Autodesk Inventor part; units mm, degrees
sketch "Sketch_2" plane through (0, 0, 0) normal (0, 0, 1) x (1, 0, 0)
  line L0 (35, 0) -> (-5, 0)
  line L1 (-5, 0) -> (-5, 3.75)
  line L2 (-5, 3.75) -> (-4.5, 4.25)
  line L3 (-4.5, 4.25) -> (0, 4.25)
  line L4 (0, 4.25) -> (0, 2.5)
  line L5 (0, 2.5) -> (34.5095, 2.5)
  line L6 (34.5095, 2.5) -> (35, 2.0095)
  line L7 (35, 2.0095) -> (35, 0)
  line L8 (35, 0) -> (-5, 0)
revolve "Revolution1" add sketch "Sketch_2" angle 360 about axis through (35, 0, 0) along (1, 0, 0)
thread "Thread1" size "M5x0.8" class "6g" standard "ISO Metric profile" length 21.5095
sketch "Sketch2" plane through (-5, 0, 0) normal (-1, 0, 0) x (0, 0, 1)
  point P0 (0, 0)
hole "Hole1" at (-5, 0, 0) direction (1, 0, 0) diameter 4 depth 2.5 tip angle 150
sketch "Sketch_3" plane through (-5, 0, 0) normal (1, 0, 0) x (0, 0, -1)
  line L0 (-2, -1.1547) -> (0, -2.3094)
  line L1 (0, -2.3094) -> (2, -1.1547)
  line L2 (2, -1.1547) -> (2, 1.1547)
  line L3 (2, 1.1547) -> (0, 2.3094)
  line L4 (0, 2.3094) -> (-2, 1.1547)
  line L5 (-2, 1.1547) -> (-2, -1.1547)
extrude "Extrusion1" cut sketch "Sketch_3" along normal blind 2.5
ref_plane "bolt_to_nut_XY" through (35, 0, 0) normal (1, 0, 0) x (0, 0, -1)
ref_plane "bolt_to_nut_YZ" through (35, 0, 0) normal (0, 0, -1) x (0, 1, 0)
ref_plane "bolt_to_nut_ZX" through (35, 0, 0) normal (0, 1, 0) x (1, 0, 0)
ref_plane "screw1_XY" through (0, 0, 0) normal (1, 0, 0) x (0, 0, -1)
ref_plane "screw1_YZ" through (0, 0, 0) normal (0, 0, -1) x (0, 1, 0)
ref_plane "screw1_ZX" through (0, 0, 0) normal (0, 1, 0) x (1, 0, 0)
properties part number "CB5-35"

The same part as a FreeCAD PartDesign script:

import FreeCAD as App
import Part
import Sketcher
Q = App.Units.Quantity

doc = App.newDocument("Part")
body = doc.addObject("PartDesign::Body", "Body")

sketch1 = body.newObject("Sketcher::SketchObject", "Sketch")
sketch1.AttachmentSupport = (doc.getObject("XY_Plane"), [""])
sketch1.MapMode = "FlatFace"
sketch1.addGeometry([
    Part.LineSegment(App.Vector(-5, 0, 0), App.Vector(35, 0, 0)),
    Part.LineSegment(App.Vector(35, 0, 0), App.Vector(35, 2.0095, 0)),
    Part.LineSegment(App.Vector(35, 2.0095, 0), App.Vector(34.5095, 2.5, 0)),
    Part.LineSegment(App.Vector(34.5095, 2.5, 0), App.Vector(0, 2.5, 0)),
    Part.LineSegment(App.Vector(0, 2.5, 0), App.Vector(0, 4.25, 0)),
    Part.LineSegment(App.Vector(0, 4.25, 0), App.Vector(-4.5, 4.25, 0)),
    Part.LineSegment(App.Vector(-4.5, 4.25, 0), App.Vector(-5, 3.75, 0)),
    Part.LineSegment(App.Vector(-5, 3.75, 0), App.Vector(-5, 0, 0)),
], False)
sketch1.addConstraint([
    Sketcher.Constraint("Coincident", 0, 2, 1, 1),
    Sketcher.Constraint("Coincident", 1, 2, 2, 1),
    Sketcher.Constraint("Coincident", 2, 2, 3, 1),
    Sketcher.Constraint("Coincident", 3, 2, 4, 1),
    Sketcher.Constraint("Coincident", 4, 2, 5, 1),
    Sketcher.Constraint("Coincident", 5, 2, 6, 1),
    Sketcher.Constraint("Coincident", 6, 2, 7, 1),
    Sketcher.Constraint("Coincident", 7, 2, 0, 1),
    Sketcher.Constraint("Horizontal", 0),
    Sketcher.Constraint("Vertical", 1),
    Sketcher.Constraint("Horizontal", 3),
    Sketcher.Constraint("Vertical", 4),
    Sketcher.Constraint("Horizontal", 5),
    Sketcher.Constraint("Vertical", 7),
    Sketcher.Constraint("PointOnObject", 0, 2, -1),
    Sketcher.Constraint("PointOnObject", 3, 2, -2),
    Sketcher.Constraint("Perpendicular", 2, 6),
    Sketcher.Constraint("DistanceX", 0, 1, 0, 2, Q("40 mm")),
    Sketcher.Constraint("Angle", 2, Q("135 deg")),
    Sketcher.Constraint("DistanceX", 5, 2, 5, 1, Q("4.5 mm")),
    Sketcher.Constraint("DistanceX", -1, 1, 0, 2, Q("35 mm")),
    Sketcher.Constraint("DistanceY", 4, 1, 4, 2, Q("1.75 mm")),
    Sketcher.Constraint("DistanceY", 7, 2, 7, 1, Q("3.75 mm")),
    Sketcher.Constraint("DistanceX", 3, 2, 3, 1, Q("34.5095 mm")),
])
revolution = body.newObject("PartDesign::Revolution", "Revolution")
revolution.Profile = sketch1
revolution.ReferenceAxis = (sketch1, ["H_Axis"])
revolution.Angle = 360

sketch2 = body.newObject("Sketcher::SketchObject", "Sketch001")
sketch2.AttachmentSupport = (doc.getObject("YZ_Plane"), [""])
sketch2.MapMode = "FlatFace"
sketch2.AttachmentOffset = App.Placement(App.Vector(0, 0, -5), App.Rotation())
sketch2.addGeometry(Part.Circle(App.Vector(0, 0, 0), App.Vector(0, 0, 1), 2), False)
sketch2.addConstraint([
    Sketcher.Constraint("Coincident", 0, 3, -1, 1),
    Sketcher.Constraint("Diameter", 0, Q("4 mm")),
])
doc.recompute()
hole = body.newObject("PartDesign::Hole", "Hole")
hole.Profile = sketch2
hole.ThreadType = "None"
hole.Diameter = 4
hole.DepthType = "Dimension"
hole.Depth = 2.5
hole.DrillPoint = "Angled"
hole.DrillPointAngle = 150
hole.Reversed = True

sketch3 = body.newObject("Sketcher::SketchObject", "Sketch002")
sketch3.AttachmentSupport = (doc.getObject("YZ_Plane"), [""])
sketch3.MapMode = "FlatFace"
sketch3.AttachmentOffset = App.Placement(App.Vector(0, 0, -5), App.Rotation())
sketch3.addGeometry([
    Part.LineSegment(App.Vector(1.1547, 2, 0), App.Vector(-1.1547, 2, 0)),
    Part.LineSegment(App.Vector(-1.1547, 2, 0), App.Vector(-2.3094, 0, 0)),
    Part.LineSegment(App.Vector(-2.3094, 0, 0), App.Vector(-1.1547, -2, 0)),
    Part.LineSegment(App.Vector(-1.1547, -2, 0), App.Vector(1.1547, -2, 0)),
    Part.LineSegment(App.Vector(1.1547, -2, 0), App.Vector(2.3094, 0, 0)),
    Part.LineSegment(App.Vector(2.3094, 0, 0), App.Vector(1.1547, 2, 0)),
], False)
sketch3.addConstraint([
    Sketcher.Constraint("Coincident", 0, 2, 1, 1),
    Sketcher.Constraint("Coincident", 1, 2, 2, 1),
    Sketcher.Constraint("Coincident", 2, 2, 3, 1),
    Sketcher.Constraint("Coincident", 3, 2, 4, 1),
    Sketcher.Constraint("Coincident", 4, 2, 5, 1),
    Sketcher.Constraint("Coincident", 5, 2, 0, 1),
    Sketcher.Constraint("Horizontal", 0),
    Sketcher.Constraint("Horizontal", 3),
    Sketcher.Constraint("Symmetric", 0, 2, 3, 2, -1, 1),
    Sketcher.Constraint("Symmetric", 1, 2, 4, 2, -1, 1),
    Sketcher.Constraint("PointOnObject", 1, 2, -1),
    Sketcher.Constraint("Parallel", 2, 5),
    Sketcher.Constraint("Vertical", 0, 2, 2, 2),
    Sketcher.Constraint("Angle", 1, Q("-120 deg")),
    Sketcher.Constraint("DistanceY", -1, 1, 0, 2, Q("2 mm")),
    Sketcher.Constraint("DistanceX", 0, 2, 0, 1, Q("2.3094 mm")),
])
pocket1 = body.newObject("PartDesign::Pocket", "Pocket")
pocket1.Profile = sketch3
pocket1.Length = 2.5
pocket1.Reversed = True

doc.recompute()
